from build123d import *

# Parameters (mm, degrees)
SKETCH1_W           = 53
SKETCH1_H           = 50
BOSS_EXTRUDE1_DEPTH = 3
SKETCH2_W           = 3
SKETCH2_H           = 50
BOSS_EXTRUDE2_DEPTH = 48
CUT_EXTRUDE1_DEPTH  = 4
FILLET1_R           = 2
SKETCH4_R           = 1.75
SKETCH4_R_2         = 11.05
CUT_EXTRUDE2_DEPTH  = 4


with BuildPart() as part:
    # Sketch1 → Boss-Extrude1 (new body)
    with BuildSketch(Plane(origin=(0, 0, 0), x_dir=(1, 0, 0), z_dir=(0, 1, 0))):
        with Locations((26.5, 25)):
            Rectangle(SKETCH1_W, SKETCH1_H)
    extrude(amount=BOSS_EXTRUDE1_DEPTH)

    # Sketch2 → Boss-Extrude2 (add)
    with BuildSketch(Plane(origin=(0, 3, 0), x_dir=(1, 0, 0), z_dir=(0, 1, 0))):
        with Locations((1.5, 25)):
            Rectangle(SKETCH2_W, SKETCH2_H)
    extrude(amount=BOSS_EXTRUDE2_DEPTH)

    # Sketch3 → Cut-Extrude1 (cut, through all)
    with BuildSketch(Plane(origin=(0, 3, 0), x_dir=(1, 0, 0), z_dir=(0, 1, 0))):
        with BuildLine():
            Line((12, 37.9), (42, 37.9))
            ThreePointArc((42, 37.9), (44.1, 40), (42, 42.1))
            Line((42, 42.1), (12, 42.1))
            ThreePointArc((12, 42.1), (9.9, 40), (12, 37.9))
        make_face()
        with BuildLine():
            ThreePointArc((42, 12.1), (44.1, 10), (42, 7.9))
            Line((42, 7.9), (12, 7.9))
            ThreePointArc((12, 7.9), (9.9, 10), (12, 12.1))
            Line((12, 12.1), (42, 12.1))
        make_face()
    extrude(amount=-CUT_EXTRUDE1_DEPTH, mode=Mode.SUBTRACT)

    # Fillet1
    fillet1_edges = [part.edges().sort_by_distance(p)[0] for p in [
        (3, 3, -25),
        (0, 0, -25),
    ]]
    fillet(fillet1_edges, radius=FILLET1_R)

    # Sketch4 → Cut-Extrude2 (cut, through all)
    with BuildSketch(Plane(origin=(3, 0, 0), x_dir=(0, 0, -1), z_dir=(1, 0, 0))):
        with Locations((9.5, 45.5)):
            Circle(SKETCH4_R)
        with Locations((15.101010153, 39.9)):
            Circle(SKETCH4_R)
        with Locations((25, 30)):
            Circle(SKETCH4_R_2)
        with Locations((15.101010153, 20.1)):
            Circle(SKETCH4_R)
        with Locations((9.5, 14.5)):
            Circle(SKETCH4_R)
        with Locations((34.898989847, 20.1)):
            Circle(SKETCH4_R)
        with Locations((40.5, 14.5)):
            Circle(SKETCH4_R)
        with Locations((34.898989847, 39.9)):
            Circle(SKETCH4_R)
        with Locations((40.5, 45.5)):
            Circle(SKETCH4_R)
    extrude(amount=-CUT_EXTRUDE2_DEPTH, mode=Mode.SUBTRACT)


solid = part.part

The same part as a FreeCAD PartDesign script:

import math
import FreeCAD as App
import Part
import Sketcher

V = App.Vector


def edges_at(feature, points):
    """Names of the edges that pass closest to the given points."""
    edges = feature.Shape.Edges
    near = lambda p: min(range(len(edges)), key=lambda i: edges[i].distToShape(Part.Vertex(*p))[0])
    return sorted({f"Edge{near(p) + 1}" for p in points})


def add_polygon(sketch, points):
    """Adds a closed chain of lines whose ends are joined by coincident constraints."""
    first, n = sketch.GeometryCount, len(points)
    for a, b in zip(points, points[1:] + points[:1]):
        sketch.addGeometry(Part.LineSegment(App.Vector(*a, 0), App.Vector(*b, 0)), False)
    for i in range(n):
        sketch.addConstraint(Sketcher.Constraint("Coincident", first + i, 2, first + (i + 1) % n, 1))

doc = App.newDocument("Part")
params = doc.addObject("Spreadsheet::Sheet", "Params")
for row, (alias, value) in enumerate([
    ("sketch1_width", "53 mm"),
    ("sketch1_height", "50 mm"),
    ("pad1_length", "3 mm"),
    ("sketch2_width", "3 mm"),
    ("sketch2_height", "50 mm"),
    ("pad2_length", "48 mm"),
    ("sketch3_radius", "2.1 mm"),
    ("sketch3_width", "30 mm"),
    ("fillet_radius", "2 mm"),
    ("sketch4_diameter", "3.5 mm"),
    ("sketch4_diameter2", "22.1 mm"),
], start=1):
    params.set(f"A{row}", alias)
    params.set(f"B{row}", "=" + value)
    params.setAlias(f"B{row}", alias)

body = doc.addObject("PartDesign::Body", "Body")

sketch1 = doc.addObject("Sketcher::SketchObject", "Sketch")
body.addObject(sketch1)
sketch1.AttachmentSupport = (doc.XZ_Plane, [""])
sketch1.MapMode = "FlatFace"
add_polygon(sketch1, [(0, -50), (0, 0), (53, 0), (53, -50)])
sketch1.addConstraint([
    Sketcher.Constraint("Vertical", 0),
    Sketcher.Constraint("Horizontal", 1),
    Sketcher.Constraint("Vertical", 2),
    Sketcher.Constraint("Horizontal", 3),
    Sketcher.Constraint("Coincident", 0, 2, -1, 1),
    Sketcher.Constraint("DistanceX", 1, 1, 1, 2, 53.0),
    Sketcher.Constraint("DistanceY", 0, 1, 0, 2, 50.0),
])
sketch1.setExpression("Constraints[9]", "Params.sketch1_width")
sketch1.setExpression("Constraints[10]", "Params.sketch1_height")
pad1 = doc.addObject("PartDesign::Pad", "Pad")
body.addObject(pad1)
pad1.Profile = sketch1
pad1.setExpression("Length", "Params.pad1_length")
pad1.Reversed = True

sketch2 = doc.addObject("Sketcher::SketchObject", "Sketch001")
body.addObject(sketch2)
sketch2.AttachmentSupport = (doc.XZ_Plane, [""])
sketch2.MapMode = "FlatFace"
sketch2.AttachmentOffset = App.Placement(V(0, 0, -3), App.Rotation())
add_polygon(sketch2, [(0, -50), (0, 0), (3, 0), (3, -50)])
sketch2.addConstraint([
    Sketcher.Constraint("Vertical", 0),
    Sketcher.Constraint("Horizontal", 1),
    Sketcher.Constraint("Vertical", 2),
    Sketcher.Constraint("Horizontal", 3),
    Sketcher.Constraint("Coincident", 0, 2, -1, 1),
    Sketcher.Constraint("DistanceX", 1, 1, 1, 2, 3.0),
    Sketcher.Constraint("DistanceY", 0, 1, 0, 2, 50.0),
])
sketch2.setExpression("Constraints[9]", "Params.sketch2_width")
sketch2.setExpression("Constraints[10]", "Params.sketch2_height")
pad2 = doc.addObject("PartDesign::Pad", "Pad001")
body.addObject(pad2)
pad2.Profile = sketch2
pad2.setExpression("Length", "Params.pad2_length")
pad2.Reversed = True

sketch3 = doc.addObject("Sketcher::SketchObject", "Sketch002")
body.addObject(sketch3)
sketch3.AttachmentSupport = (doc.XZ_Plane, [""])
sketch3.MapMode = "FlatFace"
sketch3.AttachmentOffset = App.Placement(V(0, 0, -3), App.Rotation())
sketch3.addGeometry([
    Part.LineSegment(V(12, -37.9, 0), V(42, -37.9, 0)),
    Part.ArcOfCircle(Part.Circle(V(42, -40, 0), V(0, 0, 1), 2.1), math.radians(-90), math.radians(90)),
    Part.LineSegment(V(42, -42.1, 0), V(12, -42.1, 0)),
    Part.ArcOfCircle(Part.Circle(V(12, -40, 0), V(0, 0, 1), 2.1), math.radians(90), math.radians(270)),
    Part.ArcOfCircle(Part.Circle(V(42, -10, 0), V(0, 0, 1), 2.1), math.radians(-90), math.radians(90)),
    Part.LineSegment(V(42, -12.1, 0), V(12, -12.1, 0)),
    Part.ArcOfCircle(Part.Circle(V(12, -10, 0), V(0, 0, 1), 2.1), math.radians(90), math.radians(270)),
    Part.LineSegment(V(12, -7.9, 0), V(42, -7.9, 0)),
], False)
sketch3.addConstraint([
    Sketcher.Constraint("Tangent", 0, 2, 1, 2),
    Sketcher.Constraint("Tangent", 1, 1, 2, 1),
    Sketcher.Constraint("Tangent", 2, 2, 3, 2),
    Sketcher.Constraint("Tangent", 3, 1, 0, 1),
    Sketcher.Constraint("Tangent", 4, 1, 5, 1),
    Sketcher.Constraint("Tangent", 5, 2, 6, 2),
    Sketcher.Constraint("Tangent", 6, 1, 7, 1),
    Sketcher.Constraint("Tangent", 7, 2, 4, 2),
    Sketcher.Constraint("Horizontal", 0),
    Sketcher.Constraint("Horizontal", 2),
    Sketcher.Constraint("Horizontal", 5),
    Sketcher.Constraint("Horizontal", 7),
    Sketcher.Constraint("Equal", 3, 4),
    Sketcher.Constraint("Vertical", 1, 3, 4, 3),
    Sketcher.Constraint("Vertical", 3, 3, 6, 3),
    Sketcher.Constraint("Radius", 1, 2.1),
    Sketcher.Constraint("DistanceX", 0, 1, 0, 2, 30.0),
    Sketcher.Constraint("DistanceX", -1, 1, 1, 3, 42.0),
    Sketcher.Constraint("DistanceY", 1, 3, -1, 1, 40.0),
    Sketcher.Constraint("DistanceY", 4, 3, -1, 1, 10.0),
])
sketch3.setExpression("Constraints[15]", "Params.sketch3_radius")
sketch3.setExpression("Constraints[16]", "Params.sketch3_width")
pocket1 = doc.addObject("PartDesign::Pocket", "Pocket")
body.addObject(pocket1)
pocket1.Profile = sketch3
pocket1.Type = "ThroughAll"
pocket1.Reversed = True
doc.recompute()

fillet = doc.addObject("PartDesign::Fillet", "Fillet")
body.addObject(fillet)
fillet.Base = (pocket1, edges_at(pocket1, [(3, 3, -25), (0, 0, -25)]))
fillet.setExpression("Radius", "Params.fillet_radius")

sketch4 = doc.addObject("Sketcher::SketchObject", "Sketch003")
body.addObject(sketch4)
sketch4.AttachmentSupport = (doc.YZ_Plane, [""])
sketch4.MapMode = "FlatFace"
sketch4.AttachmentOffset = App.Placement(V(0, 0, 3), App.Rotation())
sketch4.addGeometry([
    Part.Circle(V(45.5, -9.5, 0), V(0, 0, 1), 1.8),
    Part.Circle(V(39.9, -15.1, 0), V(0, 0, 1), 1.8),
    Part.Circle(V(30, -25, 0), V(0, 0, 1), 11.1),
    Part.Circle(V(20.1, -15.1, 0), V(0, 0, 1), 1.8),
    Part.Circle(V(14.5, -9.5, 0), V(0, 0, 1), 1.8),
    Part.Circle(V(20.1, -34.9, 0), V(0, 0, 1), 1.8),
    Part.Circle(V(14.5, -40.5, 0), V(0, 0, 1), 1.8),
    Part.Circle(V(39.9, -34.9, 0), V(0, 0, 1), 1.8),
    Part.Circle(V(45.5, -40.5, 0), V(0, 0, 1), 1.8),
], False)
sketch4.addConstraint([
    Sketcher.Constraint("Equal", 0, 1),
    Sketcher.Constraint("Equal", 1, 3),
    Sketcher.Constraint("Equal", 3, 4),
    Sketcher.Constraint("Equal", 4, 5),
    Sketcher.Constraint("Equal", 5, 6),
    Sketcher.Constraint("Equal", 6, 7),
    Sketcher.Constraint("Equal", 7, 8),
    Sketcher.Constraint("Horizontal", 1, 3, 3, 3),
    Sketcher.Constraint("Horizontal", 0, 3, 4, 3),
    Sketcher.Constraint("Horizontal", 5, 3, 7, 3),
    Sketcher.Constraint("Horizontal", 6, 3, 8, 3),
    Sketcher.Constraint("Vertical", 3, 3, 5, 3),
    Sketcher.Constraint("Vertical", 4, 3, 6, 3),
    Sketcher.Constraint("Vertical", 1, 3, 7, 3),
    Sketcher.Constraint("Vertical", 0, 3, 8, 3),
    Sketcher.Constraint("Diameter", 0, 3.5),
    Sketcher.Constraint("Diameter", 2, 22.1),
    Sketcher.Constraint("DistanceX", -1, 1, 2, 3, 30.0),
    Sketcher.Constraint("DistanceY", 2, 3, -1, 1, 25.0),
    Sketcher.Constraint("DistanceX", 4, 3, 0, 3, 31.0),
    Sketcher.Constraint("DistanceY", 6, 3, 4, 3, 31.0),
    Sketcher.Constraint("DistanceX", -1, 1, 0, 3, 45.5),
    Sketcher.Constraint("DistanceY", 0, 3, -1, 1, 9.5),
    Sketcher.Constraint("DistanceX", -1, 1, 1, 3, 39.9),
    Sketcher.Constraint("DistanceX", -1, 1, 3, 3, 20.1),
    Sketcher.Constraint("DistanceY", 1, 3, -1, 1, 15.10101),
    Sketcher.Constraint("DistanceY", 5, 3, -1, 1, 34.89899),
])
sketch4.setExpression("Constraints[15]", "Params.sketch4_diameter")
sketch4.setExpression("Constraints[16]", "Params.sketch4_diameter2")
pocket2 = doc.addObject("PartDesign::Pocket", "Pocket001")
body.addObject(pocket2)
pocket2.Profile = sketch4
pocket2.Type = "ThroughAll"

doc.recompute()
